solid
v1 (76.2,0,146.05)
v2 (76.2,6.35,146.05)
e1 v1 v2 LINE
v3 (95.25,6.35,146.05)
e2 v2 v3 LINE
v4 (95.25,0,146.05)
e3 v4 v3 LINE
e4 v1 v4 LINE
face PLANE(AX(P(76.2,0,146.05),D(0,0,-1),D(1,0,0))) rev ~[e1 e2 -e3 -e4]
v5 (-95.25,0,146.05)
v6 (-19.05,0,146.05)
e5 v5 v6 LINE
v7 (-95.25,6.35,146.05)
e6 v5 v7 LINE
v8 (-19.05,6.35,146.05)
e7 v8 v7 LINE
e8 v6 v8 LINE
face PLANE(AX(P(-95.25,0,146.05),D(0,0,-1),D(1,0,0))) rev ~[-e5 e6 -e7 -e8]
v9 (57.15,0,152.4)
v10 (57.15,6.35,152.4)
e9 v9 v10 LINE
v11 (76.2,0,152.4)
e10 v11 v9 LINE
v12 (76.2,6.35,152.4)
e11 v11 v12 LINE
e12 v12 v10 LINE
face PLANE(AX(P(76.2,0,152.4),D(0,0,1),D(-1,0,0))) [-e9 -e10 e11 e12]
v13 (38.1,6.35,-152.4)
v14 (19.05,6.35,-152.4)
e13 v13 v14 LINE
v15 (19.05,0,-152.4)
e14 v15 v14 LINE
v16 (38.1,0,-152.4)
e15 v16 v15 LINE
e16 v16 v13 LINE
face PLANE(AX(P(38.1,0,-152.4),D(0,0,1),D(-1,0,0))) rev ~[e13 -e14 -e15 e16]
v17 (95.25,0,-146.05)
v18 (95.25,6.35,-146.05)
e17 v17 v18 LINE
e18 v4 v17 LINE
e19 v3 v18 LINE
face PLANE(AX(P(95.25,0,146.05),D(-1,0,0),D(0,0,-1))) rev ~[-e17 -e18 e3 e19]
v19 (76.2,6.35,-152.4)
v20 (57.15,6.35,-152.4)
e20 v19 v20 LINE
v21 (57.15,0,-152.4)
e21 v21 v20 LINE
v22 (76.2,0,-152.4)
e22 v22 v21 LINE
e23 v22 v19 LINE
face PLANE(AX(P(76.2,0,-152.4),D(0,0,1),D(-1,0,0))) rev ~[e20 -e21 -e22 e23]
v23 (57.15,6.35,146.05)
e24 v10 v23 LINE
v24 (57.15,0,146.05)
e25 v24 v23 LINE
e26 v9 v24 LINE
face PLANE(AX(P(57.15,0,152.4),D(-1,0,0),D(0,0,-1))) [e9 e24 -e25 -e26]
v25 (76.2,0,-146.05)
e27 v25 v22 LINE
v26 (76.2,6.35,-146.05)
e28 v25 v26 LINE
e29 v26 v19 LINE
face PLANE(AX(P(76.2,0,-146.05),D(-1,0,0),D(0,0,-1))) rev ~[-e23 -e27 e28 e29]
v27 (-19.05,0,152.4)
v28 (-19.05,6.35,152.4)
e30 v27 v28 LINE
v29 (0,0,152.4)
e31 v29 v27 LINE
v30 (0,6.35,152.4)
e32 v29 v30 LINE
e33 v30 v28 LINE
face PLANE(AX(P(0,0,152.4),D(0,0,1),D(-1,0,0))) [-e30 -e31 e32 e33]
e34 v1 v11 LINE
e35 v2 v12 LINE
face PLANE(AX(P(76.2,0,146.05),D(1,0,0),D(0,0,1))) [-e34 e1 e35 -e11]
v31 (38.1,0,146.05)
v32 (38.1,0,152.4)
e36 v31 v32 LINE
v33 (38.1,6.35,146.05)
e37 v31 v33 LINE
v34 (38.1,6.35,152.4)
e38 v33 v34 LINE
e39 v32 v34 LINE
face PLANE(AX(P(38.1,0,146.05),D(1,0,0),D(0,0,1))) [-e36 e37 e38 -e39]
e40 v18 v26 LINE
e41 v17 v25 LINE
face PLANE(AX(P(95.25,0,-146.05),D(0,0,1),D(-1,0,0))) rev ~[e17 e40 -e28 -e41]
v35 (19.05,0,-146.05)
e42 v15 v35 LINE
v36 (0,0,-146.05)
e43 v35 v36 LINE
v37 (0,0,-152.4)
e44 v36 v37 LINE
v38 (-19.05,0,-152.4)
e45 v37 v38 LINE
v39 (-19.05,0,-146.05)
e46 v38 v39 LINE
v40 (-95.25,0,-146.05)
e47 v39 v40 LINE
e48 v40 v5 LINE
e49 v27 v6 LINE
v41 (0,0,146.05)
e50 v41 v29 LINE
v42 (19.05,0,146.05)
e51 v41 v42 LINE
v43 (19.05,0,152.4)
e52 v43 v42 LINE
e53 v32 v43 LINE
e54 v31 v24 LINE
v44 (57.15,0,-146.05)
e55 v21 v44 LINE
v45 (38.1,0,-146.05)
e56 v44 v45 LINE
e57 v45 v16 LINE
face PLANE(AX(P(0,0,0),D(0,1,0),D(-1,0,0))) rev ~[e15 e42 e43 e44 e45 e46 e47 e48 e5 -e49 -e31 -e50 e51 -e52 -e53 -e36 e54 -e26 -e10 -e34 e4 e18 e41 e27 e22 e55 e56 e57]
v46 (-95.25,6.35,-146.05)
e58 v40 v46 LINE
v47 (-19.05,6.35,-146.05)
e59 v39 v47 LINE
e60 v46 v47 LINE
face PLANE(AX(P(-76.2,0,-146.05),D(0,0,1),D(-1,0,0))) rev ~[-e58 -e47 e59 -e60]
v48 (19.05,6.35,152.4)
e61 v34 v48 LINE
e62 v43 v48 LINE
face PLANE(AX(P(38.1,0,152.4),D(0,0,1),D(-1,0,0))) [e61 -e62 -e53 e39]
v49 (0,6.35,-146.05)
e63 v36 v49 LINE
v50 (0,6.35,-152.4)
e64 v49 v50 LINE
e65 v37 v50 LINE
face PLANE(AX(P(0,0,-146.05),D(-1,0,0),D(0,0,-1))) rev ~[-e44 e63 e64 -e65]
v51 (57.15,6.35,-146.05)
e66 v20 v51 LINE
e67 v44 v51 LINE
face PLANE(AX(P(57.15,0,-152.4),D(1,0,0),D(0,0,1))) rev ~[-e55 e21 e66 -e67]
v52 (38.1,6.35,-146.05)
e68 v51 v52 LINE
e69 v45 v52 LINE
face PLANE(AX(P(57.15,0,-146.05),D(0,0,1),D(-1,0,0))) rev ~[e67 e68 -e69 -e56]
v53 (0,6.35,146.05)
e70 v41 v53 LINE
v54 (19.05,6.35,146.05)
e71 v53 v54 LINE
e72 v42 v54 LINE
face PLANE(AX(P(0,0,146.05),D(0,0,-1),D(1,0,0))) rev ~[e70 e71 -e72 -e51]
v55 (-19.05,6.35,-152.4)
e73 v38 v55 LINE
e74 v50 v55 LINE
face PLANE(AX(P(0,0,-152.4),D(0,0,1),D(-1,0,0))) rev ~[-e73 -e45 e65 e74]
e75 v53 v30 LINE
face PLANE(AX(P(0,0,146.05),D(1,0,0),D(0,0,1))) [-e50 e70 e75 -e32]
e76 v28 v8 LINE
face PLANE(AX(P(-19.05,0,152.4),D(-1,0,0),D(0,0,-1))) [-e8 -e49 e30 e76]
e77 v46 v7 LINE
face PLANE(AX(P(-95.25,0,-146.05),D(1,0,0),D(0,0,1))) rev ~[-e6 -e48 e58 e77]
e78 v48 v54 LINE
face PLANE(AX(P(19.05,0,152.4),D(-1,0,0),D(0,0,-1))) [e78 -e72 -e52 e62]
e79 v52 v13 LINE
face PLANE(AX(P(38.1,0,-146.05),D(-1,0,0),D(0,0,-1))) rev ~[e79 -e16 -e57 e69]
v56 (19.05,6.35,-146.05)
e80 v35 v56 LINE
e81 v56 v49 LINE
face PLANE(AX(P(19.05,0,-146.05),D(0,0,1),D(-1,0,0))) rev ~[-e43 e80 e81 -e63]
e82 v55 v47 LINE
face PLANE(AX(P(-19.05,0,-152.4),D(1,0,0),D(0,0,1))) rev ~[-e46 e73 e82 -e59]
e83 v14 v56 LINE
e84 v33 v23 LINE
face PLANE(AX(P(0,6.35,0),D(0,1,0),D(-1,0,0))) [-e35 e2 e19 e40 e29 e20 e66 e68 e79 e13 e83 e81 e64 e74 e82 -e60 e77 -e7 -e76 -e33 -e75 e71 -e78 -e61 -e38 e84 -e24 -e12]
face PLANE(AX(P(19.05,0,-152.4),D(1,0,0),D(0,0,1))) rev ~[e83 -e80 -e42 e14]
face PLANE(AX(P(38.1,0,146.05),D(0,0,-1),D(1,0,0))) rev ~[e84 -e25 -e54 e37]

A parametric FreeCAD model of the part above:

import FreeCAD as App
import Part
import Sketcher

V = App.Vector
Q = App.Units.Quantity

doc = App.newDocument("Part")
body = doc.addObject("PartDesign::Body", "Body")

sketch1 = body.newObject("Sketcher::SketchObject", "Sketch")
sketch1.AttachmentSupport = (doc.getObject("XZ_Plane"), [""])
sketch1.MapMode = "FlatFace"
sketch1.addGeometry([
    Part.LineSegment(V(-95, -146, 0), V(-95, 146, 0)),
    Part.LineSegment(V(-95, 146, 0), V(-19, 146, 0)),
    Part.LineSegment(V(-19, 146, 0), V(-19, 152, 0)),
    Part.LineSegment(V(-19, 152, 0), V(0, 152, 0)),
    Part.LineSegment(V(0, 152, 0), V(0, 146, 0)),
    Part.LineSegment(V(0, 146, 0), V(19, 146, 0)),
    Part.LineSegment(V(19, 146, 0), V(19, 152, 0)),
    Part.LineSegment(V(19, 152, 0), V(38, 152, 0)),
    Part.LineSegment(V(38, 152, 0), V(38, 146, 0)),
    Part.LineSegment(V(38, 146, 0), V(57, 146, 0)),
    Part.LineSegment(V(57, 146, 0), V(57, 152, 0)),
    Part.LineSegment(V(57, 152, 0), V(76, 152, 0)),
    Part.LineSegment(V(76, 152, 0), V(76, 146, 0)),
    Part.LineSegment(V(76, 146, 0), V(95, 146, 0)),
    Part.LineSegment(V(95, 146, 0), V(95, -146, 0)),
    Part.LineSegment(V(95, -146, 0), V(76, -146, 0)),
    Part.LineSegment(V(76, -146, 0), V(76, -152, 0)),
    Part.LineSegment(V(76, -152, 0), V(57, -152, 0)),
    Part.LineSegment(V(57, -152, 0), V(57, -146, 0)),
    Part.LineSegment(V(57, -146, 0), V(38, -146, 0)),
    Part.LineSegment(V(38, -146, 0), V(38, -152, 0)),
    Part.LineSegment(V(38, -152, 0), V(19, -152, 0)),
    Part.LineSegment(V(19, -152, 0), V(19, -146, 0)),
    Part.LineSegment(V(19, -146, 0), V(0, -146, 0)),
    Part.LineSegment(V(0, -146, 0), V(0, -152, 0)),
    Part.LineSegment(V(0, -152, 0), V(-19, -152, 0)),
    Part.LineSegment(V(-19, -152, 0), V(-19, -146, 0)),
    Part.LineSegment(V(-19, -146, 0), V(-95, -146, 0)),
], False)
sketch1.addConstraint([
    Sketcher.Constraint("Coincident", 0, 2, 1, 1),
    Sketcher.Constraint("Coincident", 1, 2, 2, 1),
    Sketcher.Constraint("Coincident", 2, 2, 3, 1),
    Sketcher.Constraint("Coincident", 3, 2, 4, 1),
    Sketcher.Constraint("Coincident", 4, 2, 5, 1),
    Sketcher.Constraint("Coincident", 5, 2, 6, 1),
    Sketcher.Constraint("Coincident", 6, 2, 7, 1),
    Sketcher.Constraint("Coincident", 7, 2, 8, 1),
    Sketcher.Constraint("Coincident", 8, 2, 9, 1),
    Sketcher.Constraint("Coincident", 9, 2, 10, 1),
    Sketcher.Constraint("Coincident", 10, 2, 11, 1),
    Sketcher.Constraint("Coincident", 11, 2, 12, 1),
    Sketcher.Constraint("Coincident", 12, 2, 13, 1),
    Sketcher.Constraint("Coincident", 13, 2, 14, 1),
    Sketcher.Constraint("Coincident", 14, 2, 15, 1),
    Sketcher.Constraint("Coincident", 15, 2, 16, 1),
    Sketcher.Constraint("Coincident", 16, 2, 17, 1),
    Sketcher.Constraint("Coincident", 17, 2, 18, 1),
    Sketcher.Constraint("Coincident", 18, 2, 19, 1),
    Sketcher.Constraint("Coincident", 19, 2, 20, 1),
    Sketcher.Constraint("Coincident", 20, 2, 21, 1),
    Sketcher.Constraint("Coincident", 21, 2, 22, 1),
    Sketcher.Constraint("Coincident", 22, 2, 23, 1),
    Sketcher.Constraint("Coincident", 23, 2, 24, 1),
    Sketcher.Constraint("Coincident", 24, 2, 25, 1),
    Sketcher.Constraint("Coincident", 25, 2, 26, 1),
    Sketcher.Constraint("Coincident", 26, 2, 27, 1),
    Sketcher.Constraint("Coincident", 27, 2, 0, 1),
    Sketcher.Constraint("Vertical", 0),
    Sketcher.Constraint("Horizontal", 1),
    Sketcher.Constraint("Vertical", 2),
    Sketcher.Constraint("Horizontal", 3),
    Sketcher.Constraint("Vertical", 4),
    Sketcher.Constraint("Horizontal", 5),
    Sketcher.Constraint("Vertical", 6),
    Sketcher.Constraint("Horizontal", 7),
    Sketcher.Constraint("Vertical", 8),
    Sketcher.Constraint("Horizontal", 9),
    Sketcher.Constraint("Vertical", 10),
    Sketcher.Constraint("Horizontal", 11),
    Sketcher.Constraint("Vertical", 12),
    Sketcher.Constraint("Horizontal", 13),
    Sketcher.Constraint("Vertical", 14),
    Sketcher.Constraint("Horizontal", 15),
    Sketcher.Constraint("Vertical", 16),
    Sketcher.Constraint("Horizontal", 17),
    Sketcher.Constraint("Vertical", 18),
    Sketcher.Constraint("Horizontal", 19),
    Sketcher.Constraint("Vertical", 20),
    Sketcher.Constraint("Horizontal", 21),
    Sketcher.Constraint("Vertical", 22),
    Sketcher.Constraint("Horizontal", 23),
    Sketcher.Constraint("Vertical", 24),
    Sketcher.Constraint("Horizontal", 25),
    Sketcher.Constraint("Vertical", 26),
    Sketcher.Constraint("Horizontal", 27),
    Sketcher.Constraint("Symmetric", 0, 2, 14, 2, -1, 1),
    Sketcher.Constraint("Symmetric", 2, 2, 21, 2, -1, 1),
    Sketcher.Constraint("Symmetric", 4, 2, 23, 2, -1, 1),
    Sketcher.Constraint("Symmetric", 6, 2, 25, 2, -1, 1),
    Sketcher.Constraint("Symmetric", 1, 2, 5, 2, -2),
    Sketcher.Constraint("Symmetric", 12, 2, 15, 2, -1),
    Sketcher.Constraint("Symmetric", 10, 2, 17, 2, -1),
    Sketcher.Constraint("Symmetric", 8, 2, 19, 2, -1),
    Sketcher.Constraint("Symmetric", 3, 2, 24, 2, -1),
    Sketcher.Constraint("Horizontal", 5, 2, 8, 2),
    Sketcher.Constraint("Horizontal", 7, 2, 10, 2),
    Sketcher.Constraint("Horizontal", 23, 2, 26, 2),
    Sketcher.Constraint("Equal", 5, 7),
    Sketcher.Constraint("Equal", 7, 9),
    Sketcher.Constraint("Equal", 9, 11),
    Sketcher.Constraint("Equal", 11, 13),
    Sketcher.Constraint("DistanceY", 0, 1, 0, 2, Q("11.5 in")),
    Sketcher.Constraint("DistanceX", 3, 1, 3, 2, Q("0.75 in")),
    Sketcher.Constraint("DistanceY", 2, 1, 2, 2, Q("0.25 in")),
])
pad1 = body.newObject("PartDesign::Pad", "Pad")
pad1.Profile = sketch1
pad1.Length = Q("0.25 in")
pad1.Reversed = True

doc.recompute()
